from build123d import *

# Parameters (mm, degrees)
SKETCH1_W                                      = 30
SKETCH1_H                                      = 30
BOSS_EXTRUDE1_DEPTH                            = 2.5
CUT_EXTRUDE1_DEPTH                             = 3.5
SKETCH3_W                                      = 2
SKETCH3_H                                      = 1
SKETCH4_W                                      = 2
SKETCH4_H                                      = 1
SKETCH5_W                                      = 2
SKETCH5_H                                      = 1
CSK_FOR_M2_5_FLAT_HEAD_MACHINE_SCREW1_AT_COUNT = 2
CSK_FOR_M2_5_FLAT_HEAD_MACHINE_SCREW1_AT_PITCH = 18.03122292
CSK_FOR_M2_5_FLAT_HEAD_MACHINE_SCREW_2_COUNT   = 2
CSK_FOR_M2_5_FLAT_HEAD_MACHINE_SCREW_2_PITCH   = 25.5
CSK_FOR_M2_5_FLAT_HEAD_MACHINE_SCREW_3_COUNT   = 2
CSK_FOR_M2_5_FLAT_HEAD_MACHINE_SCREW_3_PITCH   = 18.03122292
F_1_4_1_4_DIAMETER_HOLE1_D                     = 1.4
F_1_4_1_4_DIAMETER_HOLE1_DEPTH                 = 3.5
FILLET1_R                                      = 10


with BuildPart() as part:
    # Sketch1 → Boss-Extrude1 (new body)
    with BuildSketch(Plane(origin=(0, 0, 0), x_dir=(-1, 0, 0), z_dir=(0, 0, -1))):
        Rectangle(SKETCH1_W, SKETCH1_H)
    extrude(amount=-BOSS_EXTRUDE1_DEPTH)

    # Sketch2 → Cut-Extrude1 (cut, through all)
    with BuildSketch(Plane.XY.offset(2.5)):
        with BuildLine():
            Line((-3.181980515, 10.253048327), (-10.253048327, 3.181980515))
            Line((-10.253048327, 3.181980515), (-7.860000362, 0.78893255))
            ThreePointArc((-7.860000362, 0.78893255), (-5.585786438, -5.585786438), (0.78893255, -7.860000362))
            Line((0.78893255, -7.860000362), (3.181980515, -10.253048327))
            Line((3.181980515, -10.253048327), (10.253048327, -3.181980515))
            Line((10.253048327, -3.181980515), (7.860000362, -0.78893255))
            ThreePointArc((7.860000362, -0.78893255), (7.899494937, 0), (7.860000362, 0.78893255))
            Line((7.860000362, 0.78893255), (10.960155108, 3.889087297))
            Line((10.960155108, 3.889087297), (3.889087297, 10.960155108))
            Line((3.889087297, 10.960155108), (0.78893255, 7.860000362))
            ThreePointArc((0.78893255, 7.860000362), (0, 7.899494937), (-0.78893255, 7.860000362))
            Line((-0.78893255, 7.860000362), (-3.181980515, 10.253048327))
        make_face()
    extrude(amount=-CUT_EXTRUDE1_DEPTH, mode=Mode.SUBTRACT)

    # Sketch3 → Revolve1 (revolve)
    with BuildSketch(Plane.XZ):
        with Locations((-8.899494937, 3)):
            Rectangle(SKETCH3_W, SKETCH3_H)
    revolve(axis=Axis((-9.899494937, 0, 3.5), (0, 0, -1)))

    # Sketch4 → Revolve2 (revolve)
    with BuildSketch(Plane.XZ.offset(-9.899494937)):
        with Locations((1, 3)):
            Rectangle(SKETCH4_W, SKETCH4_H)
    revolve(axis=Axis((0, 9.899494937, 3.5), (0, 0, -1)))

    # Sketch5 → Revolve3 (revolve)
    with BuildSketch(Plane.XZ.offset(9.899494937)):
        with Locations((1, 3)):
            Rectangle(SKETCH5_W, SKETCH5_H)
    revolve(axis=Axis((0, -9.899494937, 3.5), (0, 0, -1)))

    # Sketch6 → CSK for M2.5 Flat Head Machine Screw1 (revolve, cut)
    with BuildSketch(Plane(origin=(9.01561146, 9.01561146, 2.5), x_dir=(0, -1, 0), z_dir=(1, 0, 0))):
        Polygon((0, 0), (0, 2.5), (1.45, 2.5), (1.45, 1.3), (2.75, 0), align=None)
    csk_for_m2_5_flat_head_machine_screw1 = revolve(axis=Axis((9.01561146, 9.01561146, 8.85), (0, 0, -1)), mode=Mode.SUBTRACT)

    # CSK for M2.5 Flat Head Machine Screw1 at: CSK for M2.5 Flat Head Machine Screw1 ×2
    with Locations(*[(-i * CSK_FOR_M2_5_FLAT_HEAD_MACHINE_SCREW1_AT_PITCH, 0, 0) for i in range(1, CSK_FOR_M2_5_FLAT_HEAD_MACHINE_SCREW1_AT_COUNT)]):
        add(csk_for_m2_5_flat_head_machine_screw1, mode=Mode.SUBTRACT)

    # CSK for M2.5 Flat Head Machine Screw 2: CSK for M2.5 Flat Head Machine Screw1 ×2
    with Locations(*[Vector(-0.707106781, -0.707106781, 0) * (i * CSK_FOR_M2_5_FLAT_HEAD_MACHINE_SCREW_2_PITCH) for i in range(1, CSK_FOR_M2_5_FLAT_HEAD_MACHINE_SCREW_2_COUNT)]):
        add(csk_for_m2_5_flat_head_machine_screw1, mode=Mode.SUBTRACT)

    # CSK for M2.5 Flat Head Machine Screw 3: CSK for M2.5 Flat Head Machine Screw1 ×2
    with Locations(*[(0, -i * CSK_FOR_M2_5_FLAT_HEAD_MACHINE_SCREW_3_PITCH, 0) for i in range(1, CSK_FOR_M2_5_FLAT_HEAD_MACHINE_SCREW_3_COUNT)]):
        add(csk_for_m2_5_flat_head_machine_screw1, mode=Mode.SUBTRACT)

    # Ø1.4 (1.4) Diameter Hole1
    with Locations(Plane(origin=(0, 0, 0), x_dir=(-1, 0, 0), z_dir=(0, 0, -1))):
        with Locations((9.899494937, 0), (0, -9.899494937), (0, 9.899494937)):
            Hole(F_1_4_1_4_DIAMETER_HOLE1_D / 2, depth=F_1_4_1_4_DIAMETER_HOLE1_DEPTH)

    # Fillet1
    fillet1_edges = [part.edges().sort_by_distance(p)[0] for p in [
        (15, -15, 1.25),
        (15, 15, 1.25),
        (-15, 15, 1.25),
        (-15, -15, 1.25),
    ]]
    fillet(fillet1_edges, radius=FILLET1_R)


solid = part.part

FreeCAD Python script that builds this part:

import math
import FreeCAD as App
import Part
import Sketcher
from FreeCAD import Vector
Q = App.Units.Quantity


def edges_at(feature, points):
    """Names of the edges that pass closest to the given points."""
    edges = feature.Shape.Edges
    near = lambda p: min(range(len(edges)), key=lambda i: edges[i].distToShape(Part.Vertex(*p))[0])
    return sorted({f"Edge{near(p) + 1}" for p in points})

doc = App.newDocument("Part")
body = doc.addObject("PartDesign::Body", "Body")

# Sketch on XY plane
sketch1 = body.newObject("Sketcher::SketchObject", "Sketch")
sketch1.AttachmentSupport = (doc.getObject("XY_Plane"), [""])
sketch1.MapMode = "FlatFace"
sketch1.addGeometry(Part.LineSegment(Vector(15, 15, 0), Vector(15, -15, 0)), False)
sketch1.addGeometry(Part.LineSegment(Vector(15, -15, 0), Vector(-15, -15, 0)), False)
sketch1.addGeometry(Part.LineSegment(Vector(-15, -15, 0), Vector(-15, 15, 0)), False)
sketch1.addGeometry(Part.LineSegment(Vector(-15, 15, 0), Vector(15, 15, 0)), False)
sketch1.addConstraint(Sketcher.Constraint("Coincident", 0, 2, 1, 1))
sketch1.addConstraint(Sketcher.Constraint("Coincident", 1, 2, 2, 1))
sketch1.addConstraint(Sketcher.Constraint("Coincident", 2, 2, 3, 1))
sketch1.addConstraint(Sketcher.Constraint("Coincident", 3, 2, 0, 1))
sketch1.addConstraint(Sketcher.Constraint("Vertical", 0))
sketch1.addConstraint(Sketcher.Constraint("Horizontal", 1))
sketch1.addConstraint(Sketcher.Constraint("Vertical", 2))
sketch1.addConstraint(Sketcher.Constraint("Horizontal", 3))
sketch1.addConstraint(Sketcher.Constraint("Symmetric", 0, 2, 2, 2, -1, 1))
sketch1.addConstraint(Sketcher.Constraint("Equal", 3, 0))
sketch1.addConstraint(Sketcher.Constraint("DistanceX", 1, 2, 1, 1, Q("30 mm")))
pad1 = body.newObject("PartDesign::Pad", "Pad")
pad1.Profile = sketch1
pad1.Length = 2.5

# Sketch on XY plane
sketch2 = body.newObject("Sketcher::SketchObject", "Sketch001")
sketch2.AttachmentSupport = (doc.getObject("XY_Plane"), [""])
sketch2.MapMode = "FlatFace"
sketch2.AttachmentOffset = App.Placement(Vector(0, 0, 2.5), App.Rotation())
sketch2.addGeometry(Part.LineSegment(Vector(-3.2, 10.3, 0), Vector(-10.3, 3.2, 0)), False)
sketch2.addGeometry(Part.LineSegment(Vector(-10.3, 3.2, 0), Vector(-7.9, 0.8, 0)), False)
sketch2.addGeometry(Part.ArcOfCircle(Part.Circle(Vector(0, 0, 0), Vector(0, 0, 1), 7.9), math.radians(174), math.radians(276)), False)
sketch2.addGeometry(Part.LineSegment(Vector(0.8, -7.9, 0), Vector(3.2, -10.3, 0)), False)
sketch2.addGeometry(Part.LineSegment(Vector(3.2, -10.3, 0), Vector(10.3, -3.2, 0)), False)
sketch2.addGeometry(Part.LineSegment(Vector(10.3, -3.2, 0), Vector(7.9, -0.8, 0)), False)
sketch2.addGeometry(Part.ArcOfCircle(Part.Circle(Vector(0, 0, 0), Vector(0, 0, 1), 7.9), math.radians(-5.73), math.radians(5.73)), False)
sketch2.addGeometry(Part.LineSegment(Vector(7.9, 0.8, 0), Vector(11, 3.9, 0)), False)
sketch2.addGeometry(Part.LineSegment(Vector(11, 3.9, 0), Vector(3.9, 11, 0)), False)
sketch2.addGeometry(Part.LineSegment(Vector(3.9, 11, 0), Vector(0.8, 7.9, 0)), False)
sketch2.addGeometry(Part.ArcOfCircle(Part.Circle(Vector(0, 0, 0), Vector(0, 0, 1), 7.9), math.radians(84.27), math.radians(95.73)), False)
sketch2.addGeometry(Part.LineSegment(Vector(-0.8, 7.9, 0), Vector(-3.2, 10.3, 0)), False)
sketch2.addConstraint(Sketcher.Constraint("Coincident", 0, 2, 1, 1))
sketch2.addConstraint(Sketcher.Constraint("Coincident", 1, 2, 2, 1))
sketch2.addConstraint(Sketcher.Constraint("Coincident", 2, 2, 3, 1))
sketch2.addConstraint(Sketcher.Constraint("Coincident", 3, 2, 4, 1))
sketch2.addConstraint(Sketcher.Constraint("Coincident", 4, 2, 5, 1))
sketch2.addConstraint(Sketcher.Constraint("Coincident", 5, 2, 6, 1))
sketch2.addConstraint(Sketcher.Constraint("Coincident", 6, 2, 7, 1))
sketch2.addConstraint(Sketcher.Constraint("Coincident", 7, 2, 8, 1))
sketch2.addConstraint(Sketcher.Constraint("Coincident", 8, 2, 9, 1))
sketch2.addConstraint(Sketcher.Constraint("Coincident", 9, 2, 10, 1))
sketch2.addConstraint(Sketcher.Constraint("Coincident", 10, 2, 11, 1))
sketch2.addConstraint(Sketcher.Constraint("Coincident", 11, 2, 0, 1))
sketch2.addConstraint(Sketcher.Constraint("Coincident", 2, 3, -1, 1))
sketch2.addConstraint(Sketcher.Constraint("Coincident", 6, 3, -1, 1))
sketch2.addConstraint(Sketcher.Constraint("Coincident", 10, 3, -1, 1))
sketch2.addConstraint(Sketcher.Constraint("Equal", 2, 6))
sketch2.addConstraint(Sketcher.Constraint("Equal", 6, 10))
sketch2.addConstraint(Sketcher.Constraint("Symmetric", 0, 2, 4, 2, -1, 1))
sketch2.addConstraint(Sketcher.Constraint("Symmetric", 3, 2, 11, 2, -1, 1))
sketch2.addConstraint(Sketcher.Constraint("Perpendicular", 0, 1))
sketch2.addConstraint(Sketcher.Constraint("Parallel", 1, 3))
sketch2.addConstraint(Sketcher.Constraint("Perpendicular", 4, 5))
sketch2.addConstraint(Sketcher.Constraint("Perpendicular", 5, 7))
sketch2.addConstraint(Sketcher.Constraint("Perpendicular", 7, 8))
sketch2.addConstraint(Sketcher.Constraint("Perpendicular", 8, 9))
sketch2.addConstraint(Sketcher.Constraint("Perpendicular", 9, 11))
sketch2.addConstraint(Sketcher.Constraint("Horizontal", 1, 2, 6, 2))
sketch2.addConstraint(Sketcher.Constraint("Horizontal", 9, 2, 10, 2))
sketch2.addConstraint(Sketcher.Constraint("Equal", 1, 3))
sketch2.addConstraint(Sketcher.Constraint("Equal", 7, 9))
sketch2.addConstraint(Sketcher.Constraint("Distance", 0, Q("10 mm")))
sketch2.addConstraint(Sketcher.Constraint("DistanceX", 1, 2, -1, 1, Q("7.86 mm")))
sketch2.addConstraint(Sketcher.Constraint("Distance", 1, Q("3.384281 mm")))
sketch2.addConstraint(Sketcher.Constraint("Distance", 7, Q("4.384281 mm")))
pocket1 = body.newObject("PartDesign::Pocket", "Pocket")
pocket1.Profile = sketch2
pocket1.Type = "ThroughAll"

# Sketch on XZ plane
sketch3 = body.newObject("Sketcher::SketchObject", "Sketch002")
sketch3.AttachmentSupport = (doc.getObject("XZ_Plane"), [""])
sketch3.MapMode = "FlatFace"
sketch3.addGeometry(Part.LineSegment(Vector(-9.9, 3.5, 0), Vector(-9.9, 2.5, 0)), False)
sketch3.addGeometry(Part.LineSegment(Vector(-9.9, 2.5, 0), Vector(-7.9, 2.5, 0)), False)
sketch3.addGeometry(Part.LineSegment(Vector(-7.9, 2.5, 0), Vector(-7.9, 3.5, 0)), False)
sketch3.addGeometry(Part.LineSegment(Vector(-7.9, 3.5, 0), Vector(-9.9, 3.5, 0)), False)
sketch3.addGeometry(Part.LineSegment(Vector(-9.9, 3.5, 0), Vector(-9.9, 2.5, 0)), True)  # axis
sketch3.addConstraint(Sketcher.Constraint("Coincident", 0, 2, 1, 1))
sketch3.addConstraint(Sketcher.Constraint("Coincident", 1, 2, 2, 1))
sketch3.addConstraint(Sketcher.Constraint("Coincident", 2, 2, 3, 1))
sketch3.addConstraint(Sketcher.Constraint("Coincident", 3, 2, 0, 1))
sketch3.addConstraint(Sketcher.Constraint("Vertical", 0))
sketch3.addConstraint(Sketcher.Constraint("Horizontal", 1))
sketch3.addConstraint(Sketcher.Constraint("Vertical", 2))
sketch3.addConstraint(Sketcher.Constraint("Horizontal", 3))
sketch3.addConstraint(Sketcher.Constraint("Vertical", 4))
sketch3.addConstraint(Sketcher.Constraint("Coincident", 4, 1, 3, 2))
sketch3.addConstraint(Sketcher.Constraint("Horizontal", 1, 2, 4, 2))
sketch3.addConstraint(Sketcher.Constraint("DistanceX", 1, 1, 1, 2, Q("2 mm")))
sketch3.addConstraint(Sketcher.Constraint("DistanceY", 0, 2, 0, 1, Q("1 mm")))
sketch3.addConstraint(Sketcher.Constraint("DistanceY", -1, 1, 0, 2, Q("2.5 mm")))
sketch3.addConstraint(Sketcher.Constraint("DistanceX", 0, 2, -1, 1, Q("9.899495 mm")))
revolution = body.newObject("PartDesign::Revolution", "Revolution")
revolution.Profile = sketch3
revolution.ReferenceAxis = (sketch3, ["Axis0"])
revolution.Angle = 360

# Sketch on XZ plane
sketch4 = body.newObject("Sketcher::SketchObject", "Sketch003")
sketch4.AttachmentSupport = (doc.getObject("XZ_Plane"), [""])
sketch4.MapMode = "FlatFace"
sketch4.AttachmentOffset = App.Placement(Vector(0, 0, -9.899495), App.Rotation())
sketch4.addGeometry(Part.LineSegment(Vector(0, 3.5, 0), Vector(0, 2.5, 0)), False)
sketch4.addGeometry(Part.LineSegment(Vector(0, 2.5, 0), Vector(2, 2.5, 0)), False)
sketch4.addGeometry(Part.LineSegment(Vector(2, 2.5, 0), Vector(2, 3.5, 0)), False)
sketch4.addGeometry(Part.LineSegment(Vector(2, 3.5, 0), Vector(0, 3.5, 0)), False)
sketch4.addConstraint(Sketcher.Constraint("Coincident", 0, 2, 1, 1))
sketch4.addConstraint(Sketcher.Constraint("Coincident", 1, 2, 2, 1))
sketch4.addConstraint(Sketcher.Constraint("Coincident", 2, 2, 3, 1))
sketch4.addConstraint(Sketcher.Constraint("Coincident", 3, 2, 0, 1))
sketch4.addConstraint(Sketcher.Constraint("Vertical", 0))
sketch4.addConstraint(Sketcher.Constraint("Horizontal", 1))
sketch4.addConstraint(Sketcher.Constraint("Vertical", 2))
sketch4.addConstraint(Sketcher.Constraint("Horizontal", 3))
sketch4.addConstraint(Sketcher.Constraint("PointOnObject", 0, 2, -2))
sketch4.addConstraint(Sketcher.Constraint("DistanceX", 1, 1, 1, 2, Q("2 mm")))
sketch4.addConstraint(Sketcher.Constraint("DistanceY", 0, 2, 0, 1, Q("1 mm")))
sketch4.addConstraint(Sketcher.Constraint("DistanceY", -1, 1, 0, 2, Q("2.5 mm")))
revolution2 = body.newObject("PartDesign::Revolution", "Revolution001")
revolution2.Profile = sketch4
revolution2.ReferenceAxis = (sketch4, ["V_Axis"])
revolution2.Angle = 360

# Sketch on XZ plane
sketch5 = body.newObject("Sketcher::SketchObject", "Sketch004")
sketch5.AttachmentSupport = (doc.getObject("XZ_Plane"), [""])
sketch5.MapMode = "FlatFace"
sketch5.AttachmentOffset = App.Placement(Vector(0, 0, 9.899495), App.Rotation())
sketch5.addGeometry(Part.LineSegment(Vector(0, 3.5, 0), Vector(0, 2.5, 0)), False)
sketch5.addGeometry(Part.LineSegment(Vector(0, 2.5, 0), Vector(2, 2.5, 0)), False)
sketch5.addGeometry(Part.LineSegment(Vector(2, 2.5, 0), Vector(2, 3.5, 0)), False)
sketch5.addGeometry(Part.LineSegment(Vector(2, 3.5, 0), Vector(0, 3.5, 0)), False)
sketch5.addConstraint(Sketcher.Constraint("Coincident", 0, 2, 1, 1))
sketch5.addConstraint(Sketcher.Constraint("Coincident", 1, 2, 2, 1))
sketch5.addConstraint(Sketcher.Constraint("Coincident", 2, 2, 3, 1))
sketch5.addConstraint(Sketcher.Constraint("Coincident", 3, 2, 0, 1))
sketch5.addConstraint(Sketcher.Constraint("Vertical", 0))
sketch5.addConstraint(Sketcher.Constraint("Horizontal", 1))
sketch5.addConstraint(Sketcher.Constraint("Vertical", 2))
sketch5.addConstraint(Sketcher.Constraint("Horizontal", 3))
sketch5.addConstraint(Sketcher.Constraint("PointOnObject", 0, 2, -2))
sketch5.addConstraint(Sketcher.Constraint("DistanceX", 1, 1, 1, 2, Q("2 mm")))
sketch5.addConstraint(Sketcher.Constraint("DistanceY", 0, 2, 0, 1, Q("1 mm")))
sketch5.addConstraint(Sketcher.Constraint("DistanceY", -1, 1, 0, 2, Q("2.5 mm")))
revolution3 = body.newObject("PartDesign::Revolution", "Revolution002")
revolution3.Profile = sketch5
revolution3.ReferenceAxis = (sketch5, ["V_Axis"])
revolution3.Angle = 360

# Sketch on YZ plane
sketch6 = body.newObject("Sketcher::SketchObject", "Sketch005")
sketch6.AttachmentSupport = (doc.getObject("YZ_Plane"), [""])
sketch6.MapMode = "FlatFace"
sketch6.AttachmentOffset = App.Placement(Vector(0, 0, 9.015611), App.Rotation())
sketch6.addGeometry(Part.LineSegment(Vector(9, 0, 0), Vector(9, 2.5, 0)), False)
sketch6.addGeometry(Part.LineSegment(Vector(9, 2.5, 0), Vector(6.3, 2.5, 0)), False)
sketch6.addGeometry(Part.LineSegment(Vector(6.3, 2.5, 0), Vector(7.6, 1.2, 0)), False)
sketch6.addGeometry(Part.LineSegment(Vector(7.6, 1.2, 0), Vector(7.6, 0, 0)), False)
sketch6.addGeometry(Part.LineSegment(Vector(7.6, 0, 0), Vector(9, 0, 0)), False)
sketch6.addGeometry(Part.LineSegment(Vector(9, 2.5, 0), Vector(9, 0, 0)), True)  # axis
sketch6.addConstraint(Sketcher.Constraint("Coincident", 0, 2, 1, 1))
sketch6.addConstraint(Sketcher.Constraint("Coincident", 1, 2, 2, 1))
sketch6.addConstraint(Sketcher.Constraint("Coincident", 2, 2, 3, 1))
sketch6.addConstraint(Sketcher.Constraint("Coincident", 3, 2, 4, 1))
sketch6.addConstraint(Sketcher.Constraint("Coincident", 4, 2, 0, 1))
sketch6.addConstraint(Sketcher.Constraint("Vertical", 0))
sketch6.addConstraint(Sketcher.Constraint("Horizontal", 1))
sketch6.addConstraint(Sketcher.Constraint("Vertical", 3))
sketch6.addConstraint(Sketcher.Constraint("Horizontal", 4))
sketch6.addConstraint(Sketcher.Constraint("Vertical", 5))
sketch6.addConstraint(Sketcher.Constraint("Coincident", 5, 1, 0, 2))
sketch6.addConstraint(Sketcher.Constraint("PointOnObject", 3, 2, -1))
sketch6.addConstraint(Sketcher.Constraint("PointOnObject", 5, 2, -1))
sketch6.addConstraint(Sketcher.Constraint("Angle", 2, Q("-45 deg")))
sketch6.addConstraint(Sketcher.Constraint("DistanceY", 0, 1, 0, 2, Q("2.5 mm")))
sketch6.addConstraint(Sketcher.Constraint("DistanceY", 3, 2, 3, 1, Q("1.2 mm")))
sketch6.addConstraint(Sketcher.Constraint("DistanceX", 1, 2, 1, 1, Q("2.75 mm")))
sketch6.addConstraint(Sketcher.Constraint("DistanceX", -1, 1, 0, 2, Q("9.015611 mm")))
groove = body.newObject("PartDesign::Groove", "Groove")
groove.Profile = sketch6
groove.ReferenceAxis = (sketch6, ["Axis0"])
groove.Angle = 360
doc.recompute()

linearpattern = body.newObject("PartDesign::LinearPattern", "LinearPattern")
linearpattern.Originals = [groove]
linearpattern.Direction = (doc.getObject("X_Axis"), [""])
linearpattern.Mode = "offset"
linearpattern.Offset = 18.031223
linearpattern.Occurrences = 2
linearpattern.Reversed = True
body.Tip = linearpattern
doc.recompute()

datumline = body.newObject("PartDesign::Line", "DatumLine")
datumline.Placement = App.Placement(Vector(0, 0, 0), App.Rotation(Vector(0, 0, 1), Vector(-0.707106781, -0.707106781, 0)))
linearpattern2 = body.newObject("PartDesign::LinearPattern", "LinearPattern001")
linearpattern2.Originals = [groove]
linearpattern2.Direction = (datumline, [""])
linearpattern2.Mode = "offset"
linearpattern2.Offset = 25.5
linearpattern2.Occurrences = 2
body.Tip = linearpattern2
doc.recompute()

linearpattern3 = body.newObject("PartDesign::LinearPattern", "LinearPattern002")
linearpattern3.Originals = [groove]
linearpattern3.Direction = (doc.getObject("Y_Axis"), [""])
linearpattern3.Mode = "offset"
linearpattern3.Offset = 18.031223
linearpattern3.Occurrences = 2
linearpattern3.Reversed = True
body.Tip = linearpattern3

# Sketch on XY plane
sketch7 = body.newObject("Sketcher::SketchObject", "Sketch006")
sketch7.AttachmentSupport = (doc.getObject("XY_Plane"), [""])
sketch7.MapMode = "FlatFace"
sketch7.addGeometry(Part.Circle(Vector(-9.9, 0, 0), Vector(0, 0, 1), 0.7), False)
sketch7.addGeometry(Part.Circle(Vector(0, -9.9, 0), Vector(0, 0, 1), 0.7), False)
sketch7.addGeometry(Part.Circle(Vector(0, 9.9, 0), Vector(0, 0, 1), 0.7), False)
sketch7.addConstraint(Sketcher.Constraint("Equal", 0, 1))
sketch7.addConstraint(Sketcher.Constraint("Equal", 1, 2))
sketch7.addConstraint(Sketcher.Constraint("Symmetric", 1, 3, 2, 3, -1, 1))
sketch7.addConstraint(Sketcher.Constraint("PointOnObject", 0, 3, -1))
sketch7.addConstraint(Sketcher.Constraint("PointOnObject", 1, 3, -2))
sketch7.addConstraint(Sketcher.Constraint("Diameter", 0, Q("1.4 mm")))
sketch7.addConstraint(Sketcher.Constraint("DistanceY", 1, 3, 2, 3, Q("19.79899 mm")))
sketch7.addConstraint(Sketcher.Constraint("DistanceX", 0, 3, -1, 1, Q("9.899495 mm")))
doc.recompute()
hole = body.newObject("PartDesign::Hole", "Hole")
hole.Profile = sketch7
hole.ThreadType = "None"
hole.Diameter = 1.4
hole.DepthType = "Dimension"
hole.Depth = 3.5
hole.DrillPoint = "Flat"
hole.Reversed = True
doc.recompute()

fillet = body.newObject("PartDesign::Fillet", "Fillet")
fillet.Base = (hole, edges_at(hole, [
    (15, -15, 1.25),
    (15, 15, 1.25),
    (-15, 15, 1.25),
    (-15, -15, 1.25),
]))
fillet.Radius = 10

doc.recompute()
